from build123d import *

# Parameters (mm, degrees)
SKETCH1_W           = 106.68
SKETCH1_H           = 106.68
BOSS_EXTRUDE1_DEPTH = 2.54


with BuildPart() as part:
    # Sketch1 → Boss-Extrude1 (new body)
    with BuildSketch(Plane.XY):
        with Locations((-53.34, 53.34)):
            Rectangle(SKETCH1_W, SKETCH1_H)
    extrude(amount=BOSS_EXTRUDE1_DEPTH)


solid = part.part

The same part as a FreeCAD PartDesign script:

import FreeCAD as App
import Part
import Sketcher
Q = App.Units.Quantity


def add_polygon(sketch, points):
    """Adds a closed chain of lines whose ends are joined by coincident constraints."""
    first, n = sketch.GeometryCount, len(points)
    for a, b in zip(points, points[1:] + points[:1]):
        sketch.addGeometry(Part.LineSegment(App.Vector(*a, 0), App.Vector(*b, 0)), False)
    for i in range(n):
        sketch.addConstraint(Sketcher.Constraint("Coincident", first + i, 2, first + (i + 1) % n, 1))

doc = App.newDocument("Part")
body = doc.addObject("PartDesign::Body", "Body")

# Sketch on XY plane
sketch1 = body.newObject("Sketcher::SketchObject", "Sketch")
sketch1.AttachmentSupport = (doc.getObject("XY_Plane"), [""])
sketch1.MapMode = "FlatFace"
add_polygon(sketch1, [(-107, 107), (-107, 0), (0, 0), (0, 107)])  # lines 0-3
sketch1.addConstraint([
    Sketcher.Constraint("Vertical", 0),
    Sketcher.Constraint("Horizontal", 1),
    Sketcher.Constraint("Vertical", 2),
    Sketcher.Constraint("Horizontal", 3),
    Sketcher.Constraint("Coincident", 1, 2, -1, 1),
    Sketcher.Constraint("Equal", 3, 0),
    Sketcher.Constraint("DistanceX", 1, 1, 1, 2, Q("4.2 in")),
])
pad1 = body.newObject("PartDesign::Pad", "Pad")
pad1.Profile = sketch1
pad1.Length = Q("0.1 in")

doc.recompute()
